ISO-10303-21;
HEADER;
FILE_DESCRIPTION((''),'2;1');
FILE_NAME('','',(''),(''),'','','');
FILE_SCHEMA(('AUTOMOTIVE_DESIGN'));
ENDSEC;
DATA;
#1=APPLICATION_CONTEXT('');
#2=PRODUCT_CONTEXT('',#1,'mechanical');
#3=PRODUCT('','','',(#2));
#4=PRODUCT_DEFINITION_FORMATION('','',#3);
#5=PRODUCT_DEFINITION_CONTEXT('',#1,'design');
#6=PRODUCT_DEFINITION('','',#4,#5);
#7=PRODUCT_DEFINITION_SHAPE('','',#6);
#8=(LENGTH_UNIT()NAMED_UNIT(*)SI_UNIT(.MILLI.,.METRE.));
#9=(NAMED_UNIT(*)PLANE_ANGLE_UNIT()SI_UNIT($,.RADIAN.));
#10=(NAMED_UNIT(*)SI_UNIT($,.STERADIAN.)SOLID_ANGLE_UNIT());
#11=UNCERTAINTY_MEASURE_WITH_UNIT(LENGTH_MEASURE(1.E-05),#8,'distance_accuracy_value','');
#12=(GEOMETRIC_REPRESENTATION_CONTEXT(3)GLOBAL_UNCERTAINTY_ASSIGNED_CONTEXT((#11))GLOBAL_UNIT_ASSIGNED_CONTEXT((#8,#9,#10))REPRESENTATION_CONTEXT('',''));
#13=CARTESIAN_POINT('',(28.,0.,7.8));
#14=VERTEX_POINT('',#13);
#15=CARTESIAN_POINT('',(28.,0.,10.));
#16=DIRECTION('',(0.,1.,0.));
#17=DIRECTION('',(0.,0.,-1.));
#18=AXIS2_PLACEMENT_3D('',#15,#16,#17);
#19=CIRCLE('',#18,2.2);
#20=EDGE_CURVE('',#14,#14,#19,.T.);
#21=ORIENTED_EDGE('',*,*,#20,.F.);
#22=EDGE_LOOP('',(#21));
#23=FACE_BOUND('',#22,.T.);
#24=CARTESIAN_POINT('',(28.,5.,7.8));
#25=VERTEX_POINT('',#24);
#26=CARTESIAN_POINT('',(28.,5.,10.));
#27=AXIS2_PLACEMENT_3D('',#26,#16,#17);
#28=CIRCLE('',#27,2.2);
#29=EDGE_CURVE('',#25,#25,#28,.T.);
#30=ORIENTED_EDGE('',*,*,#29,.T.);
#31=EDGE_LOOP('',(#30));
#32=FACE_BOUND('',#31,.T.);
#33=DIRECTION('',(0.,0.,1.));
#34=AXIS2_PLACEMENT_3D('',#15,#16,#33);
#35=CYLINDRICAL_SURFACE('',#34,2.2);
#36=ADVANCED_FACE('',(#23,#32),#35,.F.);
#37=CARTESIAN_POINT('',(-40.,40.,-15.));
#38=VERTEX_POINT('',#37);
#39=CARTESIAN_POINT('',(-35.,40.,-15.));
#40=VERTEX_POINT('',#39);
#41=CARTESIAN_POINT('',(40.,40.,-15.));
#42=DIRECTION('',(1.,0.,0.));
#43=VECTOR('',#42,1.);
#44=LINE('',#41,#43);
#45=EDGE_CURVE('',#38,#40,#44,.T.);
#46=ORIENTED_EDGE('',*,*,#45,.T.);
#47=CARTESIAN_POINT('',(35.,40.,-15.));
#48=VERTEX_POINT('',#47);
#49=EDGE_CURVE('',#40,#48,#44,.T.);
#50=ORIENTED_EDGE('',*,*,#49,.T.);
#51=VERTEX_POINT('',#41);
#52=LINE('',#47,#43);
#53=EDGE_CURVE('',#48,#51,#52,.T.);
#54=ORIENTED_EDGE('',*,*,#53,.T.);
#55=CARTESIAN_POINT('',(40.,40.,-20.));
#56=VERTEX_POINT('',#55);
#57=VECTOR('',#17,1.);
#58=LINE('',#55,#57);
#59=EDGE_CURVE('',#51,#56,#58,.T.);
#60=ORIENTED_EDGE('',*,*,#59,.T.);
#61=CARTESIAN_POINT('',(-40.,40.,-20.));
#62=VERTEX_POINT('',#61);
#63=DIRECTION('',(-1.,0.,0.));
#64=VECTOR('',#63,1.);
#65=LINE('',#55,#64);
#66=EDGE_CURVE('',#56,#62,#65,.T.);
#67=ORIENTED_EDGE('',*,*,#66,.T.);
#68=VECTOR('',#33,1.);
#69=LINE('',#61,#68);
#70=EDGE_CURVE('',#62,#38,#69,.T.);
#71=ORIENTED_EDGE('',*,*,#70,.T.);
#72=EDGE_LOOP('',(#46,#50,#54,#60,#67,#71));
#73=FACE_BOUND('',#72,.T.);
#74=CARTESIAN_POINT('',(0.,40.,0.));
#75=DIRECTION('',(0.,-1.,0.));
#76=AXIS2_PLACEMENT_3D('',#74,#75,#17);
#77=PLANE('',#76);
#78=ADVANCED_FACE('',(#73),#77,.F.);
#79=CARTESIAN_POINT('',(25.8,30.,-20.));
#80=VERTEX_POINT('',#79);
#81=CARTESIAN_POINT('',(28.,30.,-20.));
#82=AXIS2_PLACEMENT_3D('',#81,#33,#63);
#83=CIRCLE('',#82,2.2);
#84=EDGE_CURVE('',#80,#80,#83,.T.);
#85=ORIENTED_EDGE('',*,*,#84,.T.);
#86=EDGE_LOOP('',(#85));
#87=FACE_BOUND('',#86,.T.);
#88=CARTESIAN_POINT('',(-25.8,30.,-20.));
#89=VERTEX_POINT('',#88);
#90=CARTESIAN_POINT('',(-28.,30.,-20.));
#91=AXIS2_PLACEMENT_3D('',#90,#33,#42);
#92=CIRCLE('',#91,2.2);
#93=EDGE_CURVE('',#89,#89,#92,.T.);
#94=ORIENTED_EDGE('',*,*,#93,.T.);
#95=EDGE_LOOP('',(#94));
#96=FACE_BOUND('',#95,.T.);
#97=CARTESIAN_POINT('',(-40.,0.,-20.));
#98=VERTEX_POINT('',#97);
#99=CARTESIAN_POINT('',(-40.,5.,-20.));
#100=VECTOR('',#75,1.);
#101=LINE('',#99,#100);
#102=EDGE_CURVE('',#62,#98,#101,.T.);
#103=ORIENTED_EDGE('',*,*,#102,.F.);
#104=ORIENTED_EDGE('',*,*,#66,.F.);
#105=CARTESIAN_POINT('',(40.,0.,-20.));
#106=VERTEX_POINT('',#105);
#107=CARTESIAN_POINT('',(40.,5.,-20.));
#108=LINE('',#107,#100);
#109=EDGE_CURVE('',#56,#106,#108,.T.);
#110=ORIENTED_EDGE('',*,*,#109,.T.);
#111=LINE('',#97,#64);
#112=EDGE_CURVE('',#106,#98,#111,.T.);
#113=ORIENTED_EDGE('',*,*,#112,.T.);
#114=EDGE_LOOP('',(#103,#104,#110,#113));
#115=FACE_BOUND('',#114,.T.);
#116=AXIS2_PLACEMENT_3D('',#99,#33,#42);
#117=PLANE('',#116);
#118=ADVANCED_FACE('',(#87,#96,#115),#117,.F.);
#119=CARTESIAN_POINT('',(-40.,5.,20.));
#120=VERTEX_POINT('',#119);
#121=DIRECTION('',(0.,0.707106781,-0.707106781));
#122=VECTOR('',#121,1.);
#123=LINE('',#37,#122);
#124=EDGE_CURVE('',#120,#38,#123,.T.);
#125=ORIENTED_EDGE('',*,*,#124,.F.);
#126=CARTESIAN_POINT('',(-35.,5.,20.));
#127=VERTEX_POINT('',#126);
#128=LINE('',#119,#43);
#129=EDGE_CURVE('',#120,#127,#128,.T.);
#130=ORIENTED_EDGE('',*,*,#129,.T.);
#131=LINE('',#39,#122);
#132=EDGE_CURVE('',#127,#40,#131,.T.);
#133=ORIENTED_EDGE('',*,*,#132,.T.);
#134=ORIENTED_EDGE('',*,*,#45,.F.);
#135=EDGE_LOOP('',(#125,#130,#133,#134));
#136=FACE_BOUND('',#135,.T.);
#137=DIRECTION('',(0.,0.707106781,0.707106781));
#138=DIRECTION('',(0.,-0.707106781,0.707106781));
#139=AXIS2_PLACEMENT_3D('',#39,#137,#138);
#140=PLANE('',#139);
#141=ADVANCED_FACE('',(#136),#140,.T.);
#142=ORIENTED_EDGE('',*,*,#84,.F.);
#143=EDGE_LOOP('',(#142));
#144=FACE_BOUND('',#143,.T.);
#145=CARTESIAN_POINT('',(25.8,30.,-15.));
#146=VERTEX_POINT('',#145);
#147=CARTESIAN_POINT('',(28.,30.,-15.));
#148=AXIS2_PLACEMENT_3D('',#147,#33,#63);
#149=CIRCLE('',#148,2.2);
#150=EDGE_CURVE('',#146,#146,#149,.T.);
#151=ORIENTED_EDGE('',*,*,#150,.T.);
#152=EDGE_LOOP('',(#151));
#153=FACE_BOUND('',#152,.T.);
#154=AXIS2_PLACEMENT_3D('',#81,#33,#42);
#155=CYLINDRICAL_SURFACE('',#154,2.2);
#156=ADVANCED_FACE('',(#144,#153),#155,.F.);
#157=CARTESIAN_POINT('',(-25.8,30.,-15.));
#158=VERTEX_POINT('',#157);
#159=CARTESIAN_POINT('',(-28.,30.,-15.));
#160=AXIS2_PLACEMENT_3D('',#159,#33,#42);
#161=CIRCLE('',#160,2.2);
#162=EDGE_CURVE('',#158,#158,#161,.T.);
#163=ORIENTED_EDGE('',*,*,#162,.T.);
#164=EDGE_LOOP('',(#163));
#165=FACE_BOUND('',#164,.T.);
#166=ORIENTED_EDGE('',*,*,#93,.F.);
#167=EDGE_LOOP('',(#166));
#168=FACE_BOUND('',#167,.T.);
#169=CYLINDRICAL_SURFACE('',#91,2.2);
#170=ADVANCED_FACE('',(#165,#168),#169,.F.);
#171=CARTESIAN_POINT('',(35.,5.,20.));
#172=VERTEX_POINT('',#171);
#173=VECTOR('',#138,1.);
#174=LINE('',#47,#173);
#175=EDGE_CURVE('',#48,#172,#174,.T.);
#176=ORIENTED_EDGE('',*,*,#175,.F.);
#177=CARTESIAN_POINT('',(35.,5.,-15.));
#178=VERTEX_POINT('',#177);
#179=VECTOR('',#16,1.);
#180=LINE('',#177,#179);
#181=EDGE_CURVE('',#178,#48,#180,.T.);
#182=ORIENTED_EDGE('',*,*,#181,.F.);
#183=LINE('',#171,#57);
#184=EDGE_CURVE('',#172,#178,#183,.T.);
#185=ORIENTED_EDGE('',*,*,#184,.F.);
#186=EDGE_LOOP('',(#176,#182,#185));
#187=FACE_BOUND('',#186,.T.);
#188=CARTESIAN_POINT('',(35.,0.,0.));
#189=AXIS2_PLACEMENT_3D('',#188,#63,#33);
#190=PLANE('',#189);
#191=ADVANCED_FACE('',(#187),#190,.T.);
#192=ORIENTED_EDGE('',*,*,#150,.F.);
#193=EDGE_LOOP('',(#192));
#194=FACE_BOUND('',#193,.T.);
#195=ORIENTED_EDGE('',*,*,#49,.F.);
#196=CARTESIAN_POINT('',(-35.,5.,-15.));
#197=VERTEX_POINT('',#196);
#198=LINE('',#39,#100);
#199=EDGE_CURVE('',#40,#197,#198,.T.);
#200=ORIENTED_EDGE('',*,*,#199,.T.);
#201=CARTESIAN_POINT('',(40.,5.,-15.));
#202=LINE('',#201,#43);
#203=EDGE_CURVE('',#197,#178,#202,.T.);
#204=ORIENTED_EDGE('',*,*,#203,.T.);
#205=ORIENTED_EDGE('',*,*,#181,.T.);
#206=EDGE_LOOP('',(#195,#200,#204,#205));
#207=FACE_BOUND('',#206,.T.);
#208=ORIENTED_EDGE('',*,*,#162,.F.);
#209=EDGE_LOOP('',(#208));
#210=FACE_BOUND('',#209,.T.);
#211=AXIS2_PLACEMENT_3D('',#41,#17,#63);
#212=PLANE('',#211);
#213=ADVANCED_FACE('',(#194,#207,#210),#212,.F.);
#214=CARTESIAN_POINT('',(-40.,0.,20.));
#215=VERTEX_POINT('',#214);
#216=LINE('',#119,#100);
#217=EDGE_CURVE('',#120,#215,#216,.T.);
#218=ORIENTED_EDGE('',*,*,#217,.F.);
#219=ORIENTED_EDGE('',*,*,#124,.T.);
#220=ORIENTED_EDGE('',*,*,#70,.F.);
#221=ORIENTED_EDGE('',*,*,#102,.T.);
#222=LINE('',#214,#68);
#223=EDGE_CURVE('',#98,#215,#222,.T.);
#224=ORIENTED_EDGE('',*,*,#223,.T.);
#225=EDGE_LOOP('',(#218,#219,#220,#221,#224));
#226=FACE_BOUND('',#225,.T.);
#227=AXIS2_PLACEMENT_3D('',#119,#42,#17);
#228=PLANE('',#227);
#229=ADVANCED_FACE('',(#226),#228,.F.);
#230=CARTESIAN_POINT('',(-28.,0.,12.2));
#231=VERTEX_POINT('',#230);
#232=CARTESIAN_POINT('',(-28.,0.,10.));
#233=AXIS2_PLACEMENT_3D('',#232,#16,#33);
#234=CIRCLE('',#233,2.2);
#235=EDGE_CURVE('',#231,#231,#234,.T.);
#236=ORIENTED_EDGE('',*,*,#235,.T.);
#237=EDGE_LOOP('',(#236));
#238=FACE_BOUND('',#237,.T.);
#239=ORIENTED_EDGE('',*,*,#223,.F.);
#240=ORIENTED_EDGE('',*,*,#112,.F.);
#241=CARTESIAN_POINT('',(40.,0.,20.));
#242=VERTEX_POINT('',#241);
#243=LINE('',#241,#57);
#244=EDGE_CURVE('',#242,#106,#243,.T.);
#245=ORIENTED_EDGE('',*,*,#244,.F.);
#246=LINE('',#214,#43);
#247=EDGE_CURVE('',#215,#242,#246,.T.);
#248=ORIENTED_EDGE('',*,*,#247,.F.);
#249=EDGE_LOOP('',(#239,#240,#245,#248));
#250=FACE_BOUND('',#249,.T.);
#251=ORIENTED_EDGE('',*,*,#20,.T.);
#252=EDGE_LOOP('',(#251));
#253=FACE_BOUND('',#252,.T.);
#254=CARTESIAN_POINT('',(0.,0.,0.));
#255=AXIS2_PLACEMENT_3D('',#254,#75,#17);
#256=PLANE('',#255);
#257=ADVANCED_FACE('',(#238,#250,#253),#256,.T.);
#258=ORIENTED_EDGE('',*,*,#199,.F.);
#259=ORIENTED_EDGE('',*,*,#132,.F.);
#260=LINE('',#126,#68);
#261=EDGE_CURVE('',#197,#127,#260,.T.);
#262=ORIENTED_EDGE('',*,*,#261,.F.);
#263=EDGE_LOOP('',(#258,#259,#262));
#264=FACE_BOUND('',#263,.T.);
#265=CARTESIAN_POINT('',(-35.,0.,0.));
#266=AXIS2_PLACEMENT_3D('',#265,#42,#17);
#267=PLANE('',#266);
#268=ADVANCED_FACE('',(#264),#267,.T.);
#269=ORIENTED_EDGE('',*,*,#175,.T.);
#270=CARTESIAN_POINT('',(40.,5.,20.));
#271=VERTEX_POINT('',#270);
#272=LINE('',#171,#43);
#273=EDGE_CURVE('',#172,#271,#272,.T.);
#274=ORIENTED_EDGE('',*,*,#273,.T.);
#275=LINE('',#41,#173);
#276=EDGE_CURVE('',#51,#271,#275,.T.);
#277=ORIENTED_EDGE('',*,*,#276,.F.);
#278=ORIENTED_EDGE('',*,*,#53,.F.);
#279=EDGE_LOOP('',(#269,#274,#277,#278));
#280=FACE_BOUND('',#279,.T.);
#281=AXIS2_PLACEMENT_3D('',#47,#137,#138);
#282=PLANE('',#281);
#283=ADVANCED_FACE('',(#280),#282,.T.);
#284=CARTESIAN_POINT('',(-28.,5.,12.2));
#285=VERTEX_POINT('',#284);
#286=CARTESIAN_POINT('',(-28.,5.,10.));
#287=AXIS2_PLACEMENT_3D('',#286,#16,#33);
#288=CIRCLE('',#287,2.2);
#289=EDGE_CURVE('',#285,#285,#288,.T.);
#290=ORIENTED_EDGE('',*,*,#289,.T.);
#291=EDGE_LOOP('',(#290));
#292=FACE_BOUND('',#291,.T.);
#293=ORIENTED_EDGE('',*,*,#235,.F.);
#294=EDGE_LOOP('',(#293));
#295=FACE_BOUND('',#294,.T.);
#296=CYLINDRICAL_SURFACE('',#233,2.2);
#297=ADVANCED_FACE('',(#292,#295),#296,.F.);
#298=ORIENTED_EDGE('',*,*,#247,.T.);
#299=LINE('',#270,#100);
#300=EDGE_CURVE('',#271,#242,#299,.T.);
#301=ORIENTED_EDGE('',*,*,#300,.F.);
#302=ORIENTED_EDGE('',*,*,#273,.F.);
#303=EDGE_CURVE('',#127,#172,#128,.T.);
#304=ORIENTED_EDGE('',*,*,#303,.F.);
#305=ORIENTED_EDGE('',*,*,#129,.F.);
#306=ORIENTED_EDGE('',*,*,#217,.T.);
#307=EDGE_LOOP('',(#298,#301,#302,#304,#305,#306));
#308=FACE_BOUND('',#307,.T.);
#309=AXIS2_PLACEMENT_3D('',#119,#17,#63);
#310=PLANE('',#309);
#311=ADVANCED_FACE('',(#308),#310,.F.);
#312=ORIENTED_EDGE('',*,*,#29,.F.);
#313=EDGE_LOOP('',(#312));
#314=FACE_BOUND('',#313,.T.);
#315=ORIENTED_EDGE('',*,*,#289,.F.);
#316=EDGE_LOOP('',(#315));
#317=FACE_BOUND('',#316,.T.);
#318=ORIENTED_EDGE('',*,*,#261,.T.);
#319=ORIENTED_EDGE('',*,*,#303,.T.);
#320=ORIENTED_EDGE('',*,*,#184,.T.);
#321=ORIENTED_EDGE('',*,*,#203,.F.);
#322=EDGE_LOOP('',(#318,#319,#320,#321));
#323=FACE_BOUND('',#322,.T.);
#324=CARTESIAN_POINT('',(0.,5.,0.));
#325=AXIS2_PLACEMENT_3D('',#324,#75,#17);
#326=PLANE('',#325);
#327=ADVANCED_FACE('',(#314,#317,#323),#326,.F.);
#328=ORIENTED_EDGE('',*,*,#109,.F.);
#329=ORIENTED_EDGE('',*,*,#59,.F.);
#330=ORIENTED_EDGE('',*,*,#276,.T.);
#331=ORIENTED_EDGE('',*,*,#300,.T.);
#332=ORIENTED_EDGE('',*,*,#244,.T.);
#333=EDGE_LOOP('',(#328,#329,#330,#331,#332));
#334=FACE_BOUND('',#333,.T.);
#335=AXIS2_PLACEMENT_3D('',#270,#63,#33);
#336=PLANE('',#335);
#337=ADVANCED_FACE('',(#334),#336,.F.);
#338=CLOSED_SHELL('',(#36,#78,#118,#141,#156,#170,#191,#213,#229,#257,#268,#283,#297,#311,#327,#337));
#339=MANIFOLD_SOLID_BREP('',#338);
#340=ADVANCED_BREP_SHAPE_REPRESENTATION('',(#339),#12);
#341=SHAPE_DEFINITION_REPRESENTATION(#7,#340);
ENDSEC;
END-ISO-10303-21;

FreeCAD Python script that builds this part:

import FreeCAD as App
import Part
import Sketcher
from FreeCAD import Vector


def add_polygon(sketch, points):
    """Adds a closed chain of lines whose ends are joined by coincident constraints."""
    first, n = sketch.GeometryCount, len(points)
    for a, b in zip(points, points[1:] + points[:1]):
        sketch.addGeometry(Part.LineSegment(App.Vector(*a, 0), App.Vector(*b, 0)), False)
    for i in range(n):
        sketch.addConstraint(Sketcher.Constraint("Coincident", first + i, 2, first + (i + 1) % n, 1))

doc = App.newDocument("Part")
body = doc.addObject("PartDesign::Body", "Body")

sketch1 = body.newObject("Sketcher::SketchObject", "Sketch")
sketch1.AttachmentSupport = (doc.getObject("XZ_Plane"), [""])
sketch1.MapMode = "FlatFace"
add_polygon(sketch1, [(-40, -20), (-40, 20), (40, 20), (40, -20)])
sketch1.addConstraint(Sketcher.Constraint("Vertical", 0))
sketch1.addConstraint(Sketcher.Constraint("Horizontal", 1))
sketch1.addConstraint(Sketcher.Constraint("Vertical", 2))
sketch1.addConstraint(Sketcher.Constraint("Horizontal", 3))
sketch1.addConstraint(Sketcher.Constraint("Symmetric", 0, 2, 2, 2, -1, 1))
sketch1.addConstraint(Sketcher.Constraint("DistanceX", 1, 1, 1, 2, 80.0))
sketch1.addConstraint(Sketcher.Constraint("DistanceY", 0, 1, 0, 2, 40.0))
pad1 = body.newObject("PartDesign::Pad", "Pad")
pad1.Profile = sketch1
pad1.Length = 5
pad1.Reversed = True

sketch2 = body.newObject("Sketcher::SketchObject", "Sketch001")
sketch2.AttachmentSupport = (doc.getObject("XZ_Plane"), [""])
sketch2.MapMode = "FlatFace"
sketch2.AttachmentOffset = App.Placement(Vector(0, 0, -5), App.Rotation())
add_polygon(sketch2, [(-40, -20), (-40, -15), (40, -15), (40, -20)])
sketch2.addConstraint(Sketcher.Constraint("Vertical", 0))
sketch2.addConstraint(Sketcher.Constraint("Horizontal", 1))
sketch2.addConstraint(Sketcher.Constraint("Vertical", 2))
sketch2.addConstraint(Sketcher.Constraint("Horizontal", 3))
sketch2.addConstraint(Sketcher.Constraint("DistanceX", 1, 1, 1, 2, 80.0))
sketch2.addConstraint(Sketcher.Constraint("DistanceY", 0, 1, 0, 2, 5.0))
sketch2.addConstraint(Sketcher.Constraint("DistanceX", 0, 2, -1, 1, 40.0))
sketch2.addConstraint(Sketcher.Constraint("DistanceY", 0, 2, -1, 1, 15.0))
pad2 = body.newObject("PartDesign::Pad", "Pad001")
pad2.Profile = sketch2
pad2.Length = 35
pad2.Reversed = True

sketch3 = body.newObject("Sketcher::SketchObject", "Sketch002")
sketch3.AttachmentSupport = (doc.getObject("YZ_Plane"), [""])
sketch3.MapMode = "FlatFace"
sketch3.AttachmentOffset = App.Placement(Vector(0, 0, -40), App.Rotation())
add_polygon(sketch3, [(5, 20), (40, -15), (5, -15)])
sketch3.addConstraint(Sketcher.Constraint("Horizontal", 1))
sketch3.addConstraint(Sketcher.Constraint("Vertical", 2))
sketch3.addConstraint(Sketcher.Constraint("Equal", 1, 2))
sketch3.addConstraint(Sketcher.Constraint("DistanceX", 1, 2, 1, 1, 35.0))
sketch3.addConstraint(Sketcher.Constraint("DistanceX", -1, 1, 0, 2, 40.0))
sketch3.addConstraint(Sketcher.Constraint("DistanceY", 0, 2, -1, 1, 15.0))
pad3 = body.newObject("PartDesign::Pad", "Pad002")
pad3.Profile = sketch3
pad3.Length = 5

sketch4 = body.newObject("Sketcher::SketchObject", "Sketch003")
sketch4.AttachmentSupport = (doc.getObject("YZ_Plane"), [""])
sketch4.MapMode = "FlatFace"
sketch4.AttachmentOffset = App.Placement(Vector(0, 0, 40), App.Rotation())
add_polygon(sketch4, [(40, -15), (5, 20), (5, -15)])
sketch4.addConstraint(Sketcher.Constraint("Vertical", 1))
sketch4.addConstraint(Sketcher.Constraint("Horizontal", 2))
sketch4.addConstraint(Sketcher.Constraint("Equal", 2, 1))
sketch4.addConstraint(Sketcher.Constraint("DistanceX", 2, 1, 2, 2, 35.0))
sketch4.addConstraint(Sketcher.Constraint("DistanceX", -1, 1, 0, 2, 5.0))
sketch4.addConstraint(Sketcher.Constraint("DistanceY", -1, 1, 0, 2, 20.0))
pad4 = body.newObject("PartDesign::Pad", "Pad003")
pad4.Profile = sketch4
pad4.Length = 5
pad4.Reversed = True

sketch5 = body.newObject("Sketcher::SketchObject", "Sketch004")
sketch5.AttachmentSupport = (doc.getObject("XZ_Plane"), [""])
sketch5.MapMode = "FlatFace"
sketch5.AttachmentOffset = App.Placement(Vector(0, 0, -5), App.Rotation())
sketch5.addGeometry(Part.Circle(Vector(-28, 10, 0), Vector(0, 0, 1), 2.2), False)
sketch5.addGeometry(Part.Circle(Vector(28, 10, 0), Vector(0, 0, 1), 2.2), False)
sketch5.addConstraint(Sketcher.Constraint("Equal", 0, 1))
sketch5.addConstraint(Sketcher.Constraint("Symmetric", 0, 3, 1, 3, -2))
sketch5.addConstraint(Sketcher.Constraint("Diameter", 0, 4.4))
sketch5.addConstraint(Sketcher.Constraint("DistanceX", 0, 3, -1, 1, 28.0))
sketch5.addConstraint(Sketcher.Constraint("DistanceY", -1, 1, 0, 3, 10.0))
pocket1 = body.newObject("PartDesign::Pocket", "Pocket")
pocket1.Profile = sketch5
pocket1.Type = "ThroughAll"
pocket1.Reversed = True

sketch6 = body.newObject("Sketcher::SketchObject", "Sketch005")
sketch6.AttachmentSupport = (doc.getObject("XY_Plane"), [""])
sketch6.MapMode = "FlatFace"
sketch6.AttachmentOffset = App.Placement(Vector(0, 0, -15), App.Rotation())
sketch6.addGeometry(Part.Circle(Vector(-28, 30, 0), Vector(0, 0, 1), 2.2), False)
sketch6.addGeometry(Part.Circle(Vector(28, 30, 0), Vector(0, 0, 1), 2.2), False)
sketch6.addConstraint(Sketcher.Constraint("Equal", 0, 1))
sketch6.addConstraint(Sketcher.Constraint("Symmetric", 0, 3, 1, 3, -2))
sketch6.addConstraint(Sketcher.Constraint("Diameter", 0, 4.4))
sketch6.addConstraint(Sketcher.Constraint("DistanceX", 0, 3, -1, 1, 28.0))
sketch6.addConstraint(Sketcher.Constraint("DistanceY", -1, 1, 0, 3, 30.0))
pocket2 = body.newObject("PartDesign::Pocket", "Pocket001")
pocket2.Profile = sketch6
pocket2.Type = "ThroughAll"

doc.recompute()
